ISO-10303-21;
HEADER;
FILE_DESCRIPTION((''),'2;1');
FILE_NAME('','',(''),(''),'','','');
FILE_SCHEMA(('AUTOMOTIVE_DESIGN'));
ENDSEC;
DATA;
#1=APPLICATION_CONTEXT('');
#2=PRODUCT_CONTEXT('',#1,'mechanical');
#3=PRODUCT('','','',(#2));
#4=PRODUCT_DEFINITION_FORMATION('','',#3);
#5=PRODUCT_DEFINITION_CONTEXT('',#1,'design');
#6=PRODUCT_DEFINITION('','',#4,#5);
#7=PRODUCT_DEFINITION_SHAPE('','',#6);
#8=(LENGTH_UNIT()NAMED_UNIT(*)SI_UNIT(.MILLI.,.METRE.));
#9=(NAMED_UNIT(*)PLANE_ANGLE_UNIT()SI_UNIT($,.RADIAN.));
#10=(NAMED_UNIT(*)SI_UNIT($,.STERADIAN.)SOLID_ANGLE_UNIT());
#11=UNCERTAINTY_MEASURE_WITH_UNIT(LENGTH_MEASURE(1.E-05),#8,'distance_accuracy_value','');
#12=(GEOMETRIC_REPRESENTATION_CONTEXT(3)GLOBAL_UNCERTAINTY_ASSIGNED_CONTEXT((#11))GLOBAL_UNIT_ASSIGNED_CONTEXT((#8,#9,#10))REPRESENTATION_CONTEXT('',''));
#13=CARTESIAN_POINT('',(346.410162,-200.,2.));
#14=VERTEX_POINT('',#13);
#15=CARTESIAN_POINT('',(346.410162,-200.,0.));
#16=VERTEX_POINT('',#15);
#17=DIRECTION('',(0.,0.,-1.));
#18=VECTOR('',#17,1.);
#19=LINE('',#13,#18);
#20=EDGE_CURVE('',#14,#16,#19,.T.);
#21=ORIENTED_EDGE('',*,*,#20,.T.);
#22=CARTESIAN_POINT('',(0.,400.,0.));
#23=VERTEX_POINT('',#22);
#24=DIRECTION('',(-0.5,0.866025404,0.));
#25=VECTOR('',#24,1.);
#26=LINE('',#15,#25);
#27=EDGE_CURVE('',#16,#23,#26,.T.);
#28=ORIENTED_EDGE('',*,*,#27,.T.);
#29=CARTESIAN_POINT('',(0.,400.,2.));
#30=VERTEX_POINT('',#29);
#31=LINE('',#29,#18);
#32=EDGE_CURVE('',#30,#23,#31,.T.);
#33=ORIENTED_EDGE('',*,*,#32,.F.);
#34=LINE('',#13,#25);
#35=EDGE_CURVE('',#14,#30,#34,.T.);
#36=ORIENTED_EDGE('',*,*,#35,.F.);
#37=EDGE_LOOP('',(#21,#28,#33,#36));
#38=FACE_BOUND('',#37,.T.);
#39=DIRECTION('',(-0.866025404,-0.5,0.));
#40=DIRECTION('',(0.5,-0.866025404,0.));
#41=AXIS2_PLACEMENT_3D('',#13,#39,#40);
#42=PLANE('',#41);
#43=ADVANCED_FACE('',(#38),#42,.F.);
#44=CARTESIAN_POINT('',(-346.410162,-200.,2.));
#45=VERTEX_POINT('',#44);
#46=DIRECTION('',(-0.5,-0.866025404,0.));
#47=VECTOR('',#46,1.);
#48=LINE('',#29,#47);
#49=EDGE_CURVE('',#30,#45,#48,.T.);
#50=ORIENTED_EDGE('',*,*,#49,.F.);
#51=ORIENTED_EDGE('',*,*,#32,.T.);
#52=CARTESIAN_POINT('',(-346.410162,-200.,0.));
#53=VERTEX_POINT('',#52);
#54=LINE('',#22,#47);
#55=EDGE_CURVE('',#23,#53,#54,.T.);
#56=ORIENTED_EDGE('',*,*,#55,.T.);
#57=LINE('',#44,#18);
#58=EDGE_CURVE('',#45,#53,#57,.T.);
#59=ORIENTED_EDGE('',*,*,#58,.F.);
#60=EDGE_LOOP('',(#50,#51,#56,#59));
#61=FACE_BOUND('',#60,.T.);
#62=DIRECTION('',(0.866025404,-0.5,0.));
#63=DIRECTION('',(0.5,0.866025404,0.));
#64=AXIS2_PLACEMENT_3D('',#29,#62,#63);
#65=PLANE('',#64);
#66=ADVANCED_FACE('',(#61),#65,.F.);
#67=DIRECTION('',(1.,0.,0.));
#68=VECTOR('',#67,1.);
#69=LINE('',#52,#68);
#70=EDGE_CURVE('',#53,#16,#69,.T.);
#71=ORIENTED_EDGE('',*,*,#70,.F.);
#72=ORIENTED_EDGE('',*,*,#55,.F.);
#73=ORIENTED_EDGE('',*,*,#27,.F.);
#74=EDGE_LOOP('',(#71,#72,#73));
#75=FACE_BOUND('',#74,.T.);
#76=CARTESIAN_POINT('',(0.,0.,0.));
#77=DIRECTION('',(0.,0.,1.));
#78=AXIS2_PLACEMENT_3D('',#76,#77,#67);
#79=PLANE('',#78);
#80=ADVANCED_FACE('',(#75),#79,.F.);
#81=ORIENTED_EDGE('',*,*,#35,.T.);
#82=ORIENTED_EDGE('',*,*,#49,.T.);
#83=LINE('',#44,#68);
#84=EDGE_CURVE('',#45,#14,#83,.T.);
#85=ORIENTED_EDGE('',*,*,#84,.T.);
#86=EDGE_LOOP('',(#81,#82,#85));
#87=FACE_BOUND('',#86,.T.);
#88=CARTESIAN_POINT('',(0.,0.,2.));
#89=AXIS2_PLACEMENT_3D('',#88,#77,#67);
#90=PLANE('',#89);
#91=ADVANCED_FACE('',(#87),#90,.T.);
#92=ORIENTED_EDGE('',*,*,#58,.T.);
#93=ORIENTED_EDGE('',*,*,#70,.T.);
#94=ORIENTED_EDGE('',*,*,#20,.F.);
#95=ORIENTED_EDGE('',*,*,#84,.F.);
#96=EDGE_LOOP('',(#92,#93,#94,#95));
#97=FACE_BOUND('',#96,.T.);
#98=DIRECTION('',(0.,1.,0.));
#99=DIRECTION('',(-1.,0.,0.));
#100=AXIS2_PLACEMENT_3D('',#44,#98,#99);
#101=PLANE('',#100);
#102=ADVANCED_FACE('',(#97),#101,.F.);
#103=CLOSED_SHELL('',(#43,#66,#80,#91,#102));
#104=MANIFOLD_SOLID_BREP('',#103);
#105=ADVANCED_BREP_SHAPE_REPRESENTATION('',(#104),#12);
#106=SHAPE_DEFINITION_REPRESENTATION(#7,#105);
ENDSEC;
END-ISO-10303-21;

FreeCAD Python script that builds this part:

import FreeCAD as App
import Part
import Sketcher

V = App.Vector
Q = App.Units.Quantity

doc = App.newDocument("Part")
body = doc.addObject("PartDesign::Body", "Body")

sketch1 = doc.addObject("Sketcher::SketchObject", "Sketch")
body.addObject(sketch1)
sketch1.AttachmentSupport = (doc.XY_Plane, [""])
sketch1.MapMode = "FlatFace"
sketch1.addGeometry([
    Part.LineSegment(V(0, 400, 0), V(-346.410162, -200, 0)),
    Part.LineSegment(V(-346.410162, -200, 0), V(346.410162, -200, 0)),
    Part.LineSegment(V(346.410162, -200, 0), V(0, 400, 0)),
], False)
sketch1.addConstraint([
    Sketcher.Constraint("Coincident", 0, 2, 1, 1),
    Sketcher.Constraint("Coincident", 1, 2, 2, 1),
    Sketcher.Constraint("Coincident", 2, 2, 0, 1),
    Sketcher.Constraint("Horizontal", 1),
    Sketcher.Constraint("PointOnObject", 2, 2, -2),
    Sketcher.Constraint("Equal", 0, 2),
    Sketcher.Constraint("Angle", 0, Q("-120 deg")),
    Sketcher.Constraint("DistanceY", 0, 2, -1, 1, Q("200 mm")),
    Sketcher.Constraint("DistanceY", -1, 1, 2, 2, Q("400 mm")),
])
pad1 = doc.addObject("PartDesign::Pad", "Pad")
body.addObject(pad1)
pad1.Profile = sketch1
pad1.Length = 2

doc.recompute()
